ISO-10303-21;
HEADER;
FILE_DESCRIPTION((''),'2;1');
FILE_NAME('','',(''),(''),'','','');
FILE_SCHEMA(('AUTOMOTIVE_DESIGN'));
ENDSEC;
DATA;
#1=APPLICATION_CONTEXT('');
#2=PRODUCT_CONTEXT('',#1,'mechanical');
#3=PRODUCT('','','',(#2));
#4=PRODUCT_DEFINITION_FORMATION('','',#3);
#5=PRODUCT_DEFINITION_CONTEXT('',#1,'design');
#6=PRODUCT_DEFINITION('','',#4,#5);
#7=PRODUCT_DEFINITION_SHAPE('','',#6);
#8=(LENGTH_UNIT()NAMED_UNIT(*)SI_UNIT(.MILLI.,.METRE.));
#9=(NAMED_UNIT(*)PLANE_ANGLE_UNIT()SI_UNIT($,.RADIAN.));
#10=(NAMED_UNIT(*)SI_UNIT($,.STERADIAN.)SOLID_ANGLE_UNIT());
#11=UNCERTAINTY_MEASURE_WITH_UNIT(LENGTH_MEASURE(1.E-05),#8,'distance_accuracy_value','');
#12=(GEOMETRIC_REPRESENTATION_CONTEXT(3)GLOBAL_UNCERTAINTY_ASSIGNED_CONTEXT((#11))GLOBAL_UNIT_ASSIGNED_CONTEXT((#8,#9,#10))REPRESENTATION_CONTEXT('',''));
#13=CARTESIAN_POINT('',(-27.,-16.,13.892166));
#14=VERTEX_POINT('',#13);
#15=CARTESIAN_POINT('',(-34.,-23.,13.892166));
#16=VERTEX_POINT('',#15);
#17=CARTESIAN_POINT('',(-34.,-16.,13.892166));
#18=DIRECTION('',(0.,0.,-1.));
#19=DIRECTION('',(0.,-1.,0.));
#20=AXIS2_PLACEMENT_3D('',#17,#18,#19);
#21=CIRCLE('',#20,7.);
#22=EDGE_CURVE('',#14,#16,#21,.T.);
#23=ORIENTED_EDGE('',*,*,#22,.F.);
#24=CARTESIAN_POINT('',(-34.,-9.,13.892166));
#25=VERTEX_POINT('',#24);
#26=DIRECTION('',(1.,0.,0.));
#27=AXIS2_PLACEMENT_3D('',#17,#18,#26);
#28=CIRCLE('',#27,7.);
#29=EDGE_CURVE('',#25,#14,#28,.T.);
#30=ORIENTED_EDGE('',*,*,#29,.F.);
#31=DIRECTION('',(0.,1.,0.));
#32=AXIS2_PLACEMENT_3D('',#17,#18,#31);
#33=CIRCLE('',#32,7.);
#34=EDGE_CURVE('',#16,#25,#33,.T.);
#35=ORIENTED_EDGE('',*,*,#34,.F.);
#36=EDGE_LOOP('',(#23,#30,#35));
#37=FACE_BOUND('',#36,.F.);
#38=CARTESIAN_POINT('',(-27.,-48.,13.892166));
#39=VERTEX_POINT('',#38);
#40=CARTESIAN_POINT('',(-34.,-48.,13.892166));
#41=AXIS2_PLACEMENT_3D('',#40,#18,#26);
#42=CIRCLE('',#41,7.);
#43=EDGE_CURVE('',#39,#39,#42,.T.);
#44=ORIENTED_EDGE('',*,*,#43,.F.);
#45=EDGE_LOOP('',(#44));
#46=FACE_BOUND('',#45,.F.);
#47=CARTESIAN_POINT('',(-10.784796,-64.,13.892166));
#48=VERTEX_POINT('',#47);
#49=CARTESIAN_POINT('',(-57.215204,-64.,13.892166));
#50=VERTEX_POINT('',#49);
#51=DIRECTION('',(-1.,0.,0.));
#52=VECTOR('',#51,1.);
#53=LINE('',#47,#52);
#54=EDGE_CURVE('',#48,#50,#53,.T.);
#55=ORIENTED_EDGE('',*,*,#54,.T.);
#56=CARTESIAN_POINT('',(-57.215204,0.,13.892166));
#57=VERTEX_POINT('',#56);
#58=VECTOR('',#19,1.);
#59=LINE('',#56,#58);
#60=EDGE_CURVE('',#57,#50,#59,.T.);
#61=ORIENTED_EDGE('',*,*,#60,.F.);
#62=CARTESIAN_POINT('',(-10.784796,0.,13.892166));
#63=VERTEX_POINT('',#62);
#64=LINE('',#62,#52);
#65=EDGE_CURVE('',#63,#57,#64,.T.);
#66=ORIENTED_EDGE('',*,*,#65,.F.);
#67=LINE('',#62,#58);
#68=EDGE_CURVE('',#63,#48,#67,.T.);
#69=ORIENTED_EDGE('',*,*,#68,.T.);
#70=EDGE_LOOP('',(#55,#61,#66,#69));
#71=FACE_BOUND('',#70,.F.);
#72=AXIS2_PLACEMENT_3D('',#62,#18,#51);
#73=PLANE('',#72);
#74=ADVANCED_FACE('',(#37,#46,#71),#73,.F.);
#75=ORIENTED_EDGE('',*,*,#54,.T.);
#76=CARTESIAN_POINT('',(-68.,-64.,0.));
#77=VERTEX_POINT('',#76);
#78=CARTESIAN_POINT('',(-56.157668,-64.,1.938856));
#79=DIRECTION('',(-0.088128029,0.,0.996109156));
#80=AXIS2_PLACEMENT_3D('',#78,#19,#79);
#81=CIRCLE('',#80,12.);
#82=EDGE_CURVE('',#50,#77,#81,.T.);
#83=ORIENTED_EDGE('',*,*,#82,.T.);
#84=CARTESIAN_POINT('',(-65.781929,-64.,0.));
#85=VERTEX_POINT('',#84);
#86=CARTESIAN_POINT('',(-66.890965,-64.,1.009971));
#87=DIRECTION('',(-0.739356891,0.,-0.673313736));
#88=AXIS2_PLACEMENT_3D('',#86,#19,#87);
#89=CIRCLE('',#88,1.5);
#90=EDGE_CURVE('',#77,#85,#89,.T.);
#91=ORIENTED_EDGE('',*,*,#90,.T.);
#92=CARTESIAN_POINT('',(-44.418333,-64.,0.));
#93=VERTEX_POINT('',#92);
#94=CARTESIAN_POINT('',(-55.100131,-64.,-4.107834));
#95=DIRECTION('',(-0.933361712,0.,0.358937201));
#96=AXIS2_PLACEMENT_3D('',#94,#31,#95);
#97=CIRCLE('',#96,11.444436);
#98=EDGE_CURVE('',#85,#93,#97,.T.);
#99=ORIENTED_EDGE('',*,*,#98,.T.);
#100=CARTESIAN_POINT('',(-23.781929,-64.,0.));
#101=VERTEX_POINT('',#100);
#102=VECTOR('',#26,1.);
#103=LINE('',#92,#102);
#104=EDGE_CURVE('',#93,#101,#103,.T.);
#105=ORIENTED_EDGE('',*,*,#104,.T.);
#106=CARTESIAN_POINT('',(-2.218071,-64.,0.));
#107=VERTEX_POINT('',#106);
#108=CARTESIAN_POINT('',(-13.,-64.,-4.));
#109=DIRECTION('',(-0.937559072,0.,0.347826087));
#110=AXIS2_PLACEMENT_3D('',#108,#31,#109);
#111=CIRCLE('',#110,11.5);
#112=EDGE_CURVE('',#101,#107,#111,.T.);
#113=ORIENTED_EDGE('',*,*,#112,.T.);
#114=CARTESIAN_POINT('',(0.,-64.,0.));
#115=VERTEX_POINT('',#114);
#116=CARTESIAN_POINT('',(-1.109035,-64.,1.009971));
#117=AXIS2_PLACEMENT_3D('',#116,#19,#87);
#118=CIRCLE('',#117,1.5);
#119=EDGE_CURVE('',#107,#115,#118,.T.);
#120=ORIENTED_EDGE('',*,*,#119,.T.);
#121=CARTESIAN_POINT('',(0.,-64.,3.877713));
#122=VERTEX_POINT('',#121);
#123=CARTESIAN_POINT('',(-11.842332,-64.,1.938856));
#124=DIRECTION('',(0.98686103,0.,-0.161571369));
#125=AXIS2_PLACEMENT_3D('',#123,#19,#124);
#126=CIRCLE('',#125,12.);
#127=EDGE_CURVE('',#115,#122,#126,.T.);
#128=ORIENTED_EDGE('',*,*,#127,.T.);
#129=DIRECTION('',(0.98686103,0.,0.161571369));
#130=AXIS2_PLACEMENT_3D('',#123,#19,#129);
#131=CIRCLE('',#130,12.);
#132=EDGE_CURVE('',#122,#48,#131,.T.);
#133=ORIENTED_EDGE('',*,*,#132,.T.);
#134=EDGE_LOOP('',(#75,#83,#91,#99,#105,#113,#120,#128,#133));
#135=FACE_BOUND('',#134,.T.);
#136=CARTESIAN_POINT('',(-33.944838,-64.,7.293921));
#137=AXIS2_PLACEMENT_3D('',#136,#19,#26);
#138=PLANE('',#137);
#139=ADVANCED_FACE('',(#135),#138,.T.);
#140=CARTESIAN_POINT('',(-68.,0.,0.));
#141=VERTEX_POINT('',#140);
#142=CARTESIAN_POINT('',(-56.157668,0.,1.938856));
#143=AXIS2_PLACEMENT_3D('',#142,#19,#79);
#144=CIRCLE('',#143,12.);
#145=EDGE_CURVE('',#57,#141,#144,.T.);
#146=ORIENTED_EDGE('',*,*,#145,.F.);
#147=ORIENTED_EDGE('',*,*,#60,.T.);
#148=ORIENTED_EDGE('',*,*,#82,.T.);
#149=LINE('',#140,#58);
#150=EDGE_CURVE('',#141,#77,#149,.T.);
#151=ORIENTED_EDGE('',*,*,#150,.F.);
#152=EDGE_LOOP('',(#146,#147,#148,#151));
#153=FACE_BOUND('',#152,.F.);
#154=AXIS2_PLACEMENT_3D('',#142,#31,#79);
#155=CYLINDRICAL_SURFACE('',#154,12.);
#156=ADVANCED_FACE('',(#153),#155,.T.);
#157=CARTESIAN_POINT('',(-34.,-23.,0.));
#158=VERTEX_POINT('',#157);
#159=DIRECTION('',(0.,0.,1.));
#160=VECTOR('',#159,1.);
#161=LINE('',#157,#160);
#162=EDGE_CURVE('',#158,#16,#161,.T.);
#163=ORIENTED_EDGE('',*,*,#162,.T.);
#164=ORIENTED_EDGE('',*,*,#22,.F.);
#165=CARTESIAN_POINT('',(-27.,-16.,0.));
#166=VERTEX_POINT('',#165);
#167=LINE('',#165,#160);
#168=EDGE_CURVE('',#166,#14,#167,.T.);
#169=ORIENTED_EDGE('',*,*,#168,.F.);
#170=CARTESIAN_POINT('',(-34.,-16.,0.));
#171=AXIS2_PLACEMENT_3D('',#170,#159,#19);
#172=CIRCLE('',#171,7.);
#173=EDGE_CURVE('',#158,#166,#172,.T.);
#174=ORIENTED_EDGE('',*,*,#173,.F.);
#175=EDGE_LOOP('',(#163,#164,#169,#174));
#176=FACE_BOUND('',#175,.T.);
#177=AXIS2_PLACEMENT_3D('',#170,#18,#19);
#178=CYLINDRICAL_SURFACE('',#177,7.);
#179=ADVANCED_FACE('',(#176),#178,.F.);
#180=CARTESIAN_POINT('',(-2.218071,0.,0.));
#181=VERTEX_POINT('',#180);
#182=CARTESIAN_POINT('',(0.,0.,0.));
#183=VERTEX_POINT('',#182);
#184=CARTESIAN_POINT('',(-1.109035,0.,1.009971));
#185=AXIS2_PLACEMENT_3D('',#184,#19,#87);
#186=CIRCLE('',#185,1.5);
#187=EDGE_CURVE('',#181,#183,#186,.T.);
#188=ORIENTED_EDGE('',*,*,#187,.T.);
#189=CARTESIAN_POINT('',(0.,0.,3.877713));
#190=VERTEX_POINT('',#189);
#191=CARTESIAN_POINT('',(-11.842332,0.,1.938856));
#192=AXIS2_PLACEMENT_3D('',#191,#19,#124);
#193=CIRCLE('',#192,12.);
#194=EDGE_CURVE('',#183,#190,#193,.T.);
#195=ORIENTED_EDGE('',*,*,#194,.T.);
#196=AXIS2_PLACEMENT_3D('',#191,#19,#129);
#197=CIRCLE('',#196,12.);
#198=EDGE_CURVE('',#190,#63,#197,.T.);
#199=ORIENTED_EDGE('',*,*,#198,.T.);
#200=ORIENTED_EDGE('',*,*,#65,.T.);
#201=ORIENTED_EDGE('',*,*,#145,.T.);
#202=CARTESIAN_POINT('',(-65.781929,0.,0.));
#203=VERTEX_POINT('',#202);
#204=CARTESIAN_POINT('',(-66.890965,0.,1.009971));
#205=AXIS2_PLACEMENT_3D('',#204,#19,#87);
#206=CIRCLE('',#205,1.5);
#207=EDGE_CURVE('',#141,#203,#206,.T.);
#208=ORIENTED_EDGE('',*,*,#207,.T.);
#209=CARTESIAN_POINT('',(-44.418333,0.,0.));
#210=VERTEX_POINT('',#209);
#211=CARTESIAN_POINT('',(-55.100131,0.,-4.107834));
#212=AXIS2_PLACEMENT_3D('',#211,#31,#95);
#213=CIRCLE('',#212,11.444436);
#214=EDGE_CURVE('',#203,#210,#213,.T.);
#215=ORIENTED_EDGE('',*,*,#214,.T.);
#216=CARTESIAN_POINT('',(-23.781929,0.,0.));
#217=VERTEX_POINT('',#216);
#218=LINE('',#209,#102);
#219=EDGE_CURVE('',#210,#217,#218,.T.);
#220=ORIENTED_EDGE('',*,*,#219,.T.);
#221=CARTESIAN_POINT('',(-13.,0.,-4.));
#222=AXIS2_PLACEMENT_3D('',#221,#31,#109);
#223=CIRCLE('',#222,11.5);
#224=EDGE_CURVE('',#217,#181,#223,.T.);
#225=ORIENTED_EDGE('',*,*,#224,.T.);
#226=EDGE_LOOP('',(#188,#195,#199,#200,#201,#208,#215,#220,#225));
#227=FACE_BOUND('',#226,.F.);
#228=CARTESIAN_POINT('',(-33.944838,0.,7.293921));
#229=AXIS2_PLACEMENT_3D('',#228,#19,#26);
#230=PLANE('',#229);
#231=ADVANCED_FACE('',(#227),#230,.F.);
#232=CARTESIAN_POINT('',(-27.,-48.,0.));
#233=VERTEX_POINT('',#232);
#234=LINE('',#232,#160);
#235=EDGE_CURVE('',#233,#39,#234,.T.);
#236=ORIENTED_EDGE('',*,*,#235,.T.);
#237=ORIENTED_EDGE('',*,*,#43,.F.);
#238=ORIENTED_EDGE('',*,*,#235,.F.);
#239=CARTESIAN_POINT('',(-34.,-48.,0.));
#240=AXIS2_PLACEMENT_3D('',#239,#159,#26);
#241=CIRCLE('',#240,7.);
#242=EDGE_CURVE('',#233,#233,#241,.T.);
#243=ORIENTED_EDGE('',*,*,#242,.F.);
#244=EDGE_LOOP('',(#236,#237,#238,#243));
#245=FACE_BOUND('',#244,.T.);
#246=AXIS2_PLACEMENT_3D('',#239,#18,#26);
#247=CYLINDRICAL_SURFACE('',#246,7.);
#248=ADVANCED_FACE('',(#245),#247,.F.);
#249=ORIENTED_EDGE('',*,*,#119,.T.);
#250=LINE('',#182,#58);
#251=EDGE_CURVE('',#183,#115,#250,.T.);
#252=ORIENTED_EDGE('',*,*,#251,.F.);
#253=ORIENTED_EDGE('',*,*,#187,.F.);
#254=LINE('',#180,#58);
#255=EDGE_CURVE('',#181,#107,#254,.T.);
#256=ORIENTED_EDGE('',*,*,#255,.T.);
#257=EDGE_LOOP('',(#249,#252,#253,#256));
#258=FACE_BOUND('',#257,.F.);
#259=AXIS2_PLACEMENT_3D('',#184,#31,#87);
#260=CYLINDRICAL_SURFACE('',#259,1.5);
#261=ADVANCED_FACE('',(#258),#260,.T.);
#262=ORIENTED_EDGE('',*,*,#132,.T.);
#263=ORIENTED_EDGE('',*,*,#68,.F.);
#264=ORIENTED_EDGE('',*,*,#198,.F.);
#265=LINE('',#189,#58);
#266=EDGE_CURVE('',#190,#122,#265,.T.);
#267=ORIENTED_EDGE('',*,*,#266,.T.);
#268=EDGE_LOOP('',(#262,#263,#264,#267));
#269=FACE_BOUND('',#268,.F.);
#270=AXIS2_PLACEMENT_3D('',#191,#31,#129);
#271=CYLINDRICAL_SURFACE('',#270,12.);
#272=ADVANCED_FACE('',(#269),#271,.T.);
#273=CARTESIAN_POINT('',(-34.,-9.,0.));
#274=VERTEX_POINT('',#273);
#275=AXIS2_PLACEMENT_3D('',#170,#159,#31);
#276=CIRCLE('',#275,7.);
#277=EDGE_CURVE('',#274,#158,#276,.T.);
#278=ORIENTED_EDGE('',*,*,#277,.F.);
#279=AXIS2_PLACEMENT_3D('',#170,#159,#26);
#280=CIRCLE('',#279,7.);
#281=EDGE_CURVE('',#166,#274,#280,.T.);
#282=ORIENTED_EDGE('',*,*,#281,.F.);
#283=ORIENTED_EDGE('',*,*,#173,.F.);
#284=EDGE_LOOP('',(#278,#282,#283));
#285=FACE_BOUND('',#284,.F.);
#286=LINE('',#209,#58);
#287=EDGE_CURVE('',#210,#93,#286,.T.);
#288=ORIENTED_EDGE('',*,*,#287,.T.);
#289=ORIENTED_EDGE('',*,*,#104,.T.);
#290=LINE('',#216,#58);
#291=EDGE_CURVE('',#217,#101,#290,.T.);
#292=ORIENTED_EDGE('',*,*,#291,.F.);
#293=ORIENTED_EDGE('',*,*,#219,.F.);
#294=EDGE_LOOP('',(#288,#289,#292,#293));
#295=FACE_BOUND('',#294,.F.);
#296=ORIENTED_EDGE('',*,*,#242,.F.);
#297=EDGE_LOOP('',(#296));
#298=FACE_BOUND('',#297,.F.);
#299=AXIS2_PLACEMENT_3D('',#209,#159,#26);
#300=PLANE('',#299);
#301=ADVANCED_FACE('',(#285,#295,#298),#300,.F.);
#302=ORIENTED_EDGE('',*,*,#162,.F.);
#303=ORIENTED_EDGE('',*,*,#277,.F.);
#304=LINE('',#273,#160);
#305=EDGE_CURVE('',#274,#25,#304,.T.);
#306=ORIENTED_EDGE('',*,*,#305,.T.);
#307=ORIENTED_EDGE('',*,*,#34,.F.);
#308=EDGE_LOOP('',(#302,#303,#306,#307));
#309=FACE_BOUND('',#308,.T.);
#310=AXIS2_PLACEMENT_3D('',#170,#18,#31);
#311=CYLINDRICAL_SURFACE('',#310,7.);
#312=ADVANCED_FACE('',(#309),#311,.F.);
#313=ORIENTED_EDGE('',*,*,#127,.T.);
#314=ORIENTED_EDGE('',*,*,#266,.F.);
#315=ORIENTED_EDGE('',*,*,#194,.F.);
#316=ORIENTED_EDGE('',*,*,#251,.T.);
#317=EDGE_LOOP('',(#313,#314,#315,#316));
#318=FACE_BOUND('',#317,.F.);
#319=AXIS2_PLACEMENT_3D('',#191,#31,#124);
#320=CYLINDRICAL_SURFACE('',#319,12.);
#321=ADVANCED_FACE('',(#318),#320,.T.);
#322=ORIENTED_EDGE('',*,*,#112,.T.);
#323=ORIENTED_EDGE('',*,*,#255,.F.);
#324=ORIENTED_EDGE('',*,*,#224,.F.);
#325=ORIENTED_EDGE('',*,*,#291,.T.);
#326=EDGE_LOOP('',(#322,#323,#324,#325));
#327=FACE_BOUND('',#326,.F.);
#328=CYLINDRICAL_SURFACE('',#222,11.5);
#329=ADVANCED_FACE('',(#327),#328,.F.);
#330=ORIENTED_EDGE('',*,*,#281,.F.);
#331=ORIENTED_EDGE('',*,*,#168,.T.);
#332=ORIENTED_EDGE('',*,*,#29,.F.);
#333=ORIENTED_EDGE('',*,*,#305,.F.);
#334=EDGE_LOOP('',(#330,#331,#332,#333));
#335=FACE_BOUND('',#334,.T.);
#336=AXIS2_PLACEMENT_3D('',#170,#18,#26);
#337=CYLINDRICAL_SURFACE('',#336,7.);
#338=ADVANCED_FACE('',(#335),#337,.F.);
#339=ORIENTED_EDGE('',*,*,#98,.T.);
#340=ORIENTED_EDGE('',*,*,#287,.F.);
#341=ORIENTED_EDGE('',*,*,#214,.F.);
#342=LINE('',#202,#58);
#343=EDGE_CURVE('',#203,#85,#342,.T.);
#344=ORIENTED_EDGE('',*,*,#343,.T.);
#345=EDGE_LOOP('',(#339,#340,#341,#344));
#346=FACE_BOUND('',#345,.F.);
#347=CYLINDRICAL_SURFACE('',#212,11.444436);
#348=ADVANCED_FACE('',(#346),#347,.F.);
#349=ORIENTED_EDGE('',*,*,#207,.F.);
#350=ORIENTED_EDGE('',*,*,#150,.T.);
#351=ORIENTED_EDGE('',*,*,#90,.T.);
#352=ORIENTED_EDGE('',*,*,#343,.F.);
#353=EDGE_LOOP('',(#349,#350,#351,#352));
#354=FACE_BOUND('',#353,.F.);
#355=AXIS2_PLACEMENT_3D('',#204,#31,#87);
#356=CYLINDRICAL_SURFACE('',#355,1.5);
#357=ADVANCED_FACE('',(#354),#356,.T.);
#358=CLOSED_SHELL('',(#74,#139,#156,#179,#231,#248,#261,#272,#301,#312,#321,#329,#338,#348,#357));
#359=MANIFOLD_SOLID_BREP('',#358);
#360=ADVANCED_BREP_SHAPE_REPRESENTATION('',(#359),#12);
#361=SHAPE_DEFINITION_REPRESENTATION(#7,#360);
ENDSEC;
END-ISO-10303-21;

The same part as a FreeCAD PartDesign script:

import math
import FreeCAD as App
import Part
import Sketcher
from FreeCAD import Vector
Q = App.Units.Quantity

doc = App.newDocument("Part")
body = doc.addObject("PartDesign::Body", "Body")

# Sketch on XZ plane
sketch1 = doc.addObject("Sketcher::SketchObject", "Sketch")
body.addObject(sketch1)
sketch1.AttachmentSupport = (doc.XZ_Plane, [""])
sketch1.MapMode = "FlatFace"
sketch1.addGeometry([
    Part.LineSegment(Vector(-44.4, 0, 0), Vector(-23.8, 0, 0)),  # 0
    Part.ArcOfCircle(Part.Circle(Vector(-13, -4, 0), Vector(0, 0, 1), 11.5), math.radians(20), math.radians(160)),  # 1
    Part.ArcOfCircle(Part.Circle(Vector(-1.1, 1, 0), Vector(0, 0, 1), 1.5), math.radians(-138), math.radians(-42)),  # 2
    Part.ArcOfCircle(Part.Circle(Vector(-11.8, 1.9, 0), Vector(0, 0, 1), 12), math.radians(-9.3), math.radians(9.3)),  # 3
    Part.ArcOfCircle(Part.Circle(Vector(-11.8, 1.9, 0), Vector(0, 0, 1), 12), math.radians(9), math.radians(85)),  # 4
    Part.LineSegment(Vector(-10.8, 13.9, 0), Vector(-57.2, 13.9, 0)),  # 5
    Part.ArcOfCircle(Part.Circle(Vector(-56.2, 1.9, 0), Vector(0, 0, 1), 12), math.radians(95), math.radians(189)),  # 6
    Part.ArcOfCircle(Part.Circle(Vector(-66.9, 1, 0), Vector(0, 0, 1), 1.5), math.radians(-138), math.radians(-42)),  # 7
    Part.ArcOfCircle(Part.Circle(Vector(-55.1, -4.1, 0), Vector(0, 0, 1), 11.4), math.radians(21), math.radians(159)),  # 8
], False)
sketch1.addConstraint([
    Sketcher.Constraint("Coincident", 0, 2, 1, 2),
    Sketcher.Constraint("Coincident", 1, 1, 2, 1),
    Sketcher.Constraint("Coincident", 2, 2, 3, 1),
    Sketcher.Constraint("Tangent", 3, 2, 4, 1),
    Sketcher.Constraint("Coincident", 4, 2, 5, 1),
    Sketcher.Constraint("Coincident", 5, 2, 6, 1),
    Sketcher.Constraint("Coincident", 6, 2, 7, 1),
    Sketcher.Constraint("Coincident", 7, 2, 8, 2),
    Sketcher.Constraint("Coincident", 8, 1, 0, 1),
    Sketcher.Constraint("Horizontal", 0),
    Sketcher.Constraint("Horizontal", 5),
    Sketcher.Constraint("Coincident", 2, 2, -1, 1),
    Sketcher.Constraint("Equal", 3, 4),
    Sketcher.Constraint("Equal", 4, 6),
    Sketcher.Constraint("Equal", 2, 7),
    Sketcher.Constraint("PointOnObject", 0, 2, -1),
    Sketcher.Constraint("PointOnObject", 1, 1, -1),
    Sketcher.Constraint("PointOnObject", 3, 2, -2),
    Sketcher.Constraint("PointOnObject", 6, 2, -1),
    Sketcher.Constraint("PointOnObject", 7, 2, -1),
    Sketcher.Constraint("Horizontal", 4, 3, 6, 3),
    Sketcher.Constraint("Horizontal", 2, 3, 7, 3),
    Sketcher.Constraint("Radius", 3, Q("12 mm")),
    Sketcher.Constraint("Radius", 1, Q("11.5 mm")),
    Sketcher.Constraint("Radius", 2, Q("1.5 mm")),
    Sketcher.Constraint("DistanceX", 1, 3, -1, 1, Q("13 mm")),
    Sketcher.Constraint("DistanceY", 1, 3, -1, 1, Q("4 mm")),
    Sketcher.Constraint("DistanceX", 6, 2, -1, 1, Q("68 mm")),
    Sketcher.Constraint("DistanceY", 8, 3, 5, 2, Q("18 mm")),
    Sketcher.Constraint("Radius", 8, Q("11.444436 mm")),
    Sketcher.Constraint("DistanceX", 8, 3, 4, 3, Q("43.257799 mm")),
    Sketcher.Constraint("DistanceX", 8, 3, 0, 2, Q("31.318202 mm")),
])
pad1 = doc.addObject("PartDesign::Pad", "Pad")
body.addObject(pad1)
pad1.Profile = sketch1
pad1.Length = 64

# Sketch on XY plane
sketch2 = doc.addObject("Sketcher::SketchObject", "Sketch001")
body.addObject(sketch2)
sketch2.AttachmentSupport = (doc.XY_Plane, [""])
sketch2.MapMode = "FlatFace"
sketch2.addGeometry([
    Part.Circle(Vector(-34, -48, 0), Vector(0, 0, 1), 7),
    Part.ArcOfCircle(Part.Circle(Vector(-34, -16, 0), Vector(0, 0, 1), 7), math.radians(0), math.radians(90)),
    Part.ArcOfCircle(Part.Circle(Vector(-34, -16, 0), Vector(0, 0, 1), 7), math.radians(90), math.radians(270)),
    Part.ArcOfCircle(Part.Circle(Vector(-34, -16, 0), Vector(0, 0, 1), 7), math.radians(-90), math.radians(0)),
], False)
sketch2.addConstraint([
    Sketcher.Constraint("Tangent", 1, 2, 2, 1),
    Sketcher.Constraint("Tangent", 2, 2, 3, 1),
    Sketcher.Constraint("Tangent", 3, 2, 1, 1),
    Sketcher.Constraint("Equal", 0, 1),
    Sketcher.Constraint("Horizontal", 2, 3, 3, 2),
    Sketcher.Constraint("Vertical", 0, 3, 1, 3),
    Sketcher.Constraint("Vertical", 3, 3, 1, 2),
    Sketcher.Constraint("Vertical", 1, 2, 2, 2),
    Sketcher.Constraint("Diameter", 0, Q("14 mm")),
    Sketcher.Constraint("DistanceX", 0, 3, -1, 1, Q("34 mm")),
    Sketcher.Constraint("DistanceY", 0, 3, -1, 1, Q("48 mm")),
    Sketcher.Constraint("DistanceY", 1, 3, -1, 1, Q("16 mm")),
])
pocket1 = doc.addObject("PartDesign::Pocket", "Pocket")
body.addObject(pocket1)
pocket1.Profile = sketch2
pocket1.Length = 14
pocket1.Reversed = True

doc.recompute()
